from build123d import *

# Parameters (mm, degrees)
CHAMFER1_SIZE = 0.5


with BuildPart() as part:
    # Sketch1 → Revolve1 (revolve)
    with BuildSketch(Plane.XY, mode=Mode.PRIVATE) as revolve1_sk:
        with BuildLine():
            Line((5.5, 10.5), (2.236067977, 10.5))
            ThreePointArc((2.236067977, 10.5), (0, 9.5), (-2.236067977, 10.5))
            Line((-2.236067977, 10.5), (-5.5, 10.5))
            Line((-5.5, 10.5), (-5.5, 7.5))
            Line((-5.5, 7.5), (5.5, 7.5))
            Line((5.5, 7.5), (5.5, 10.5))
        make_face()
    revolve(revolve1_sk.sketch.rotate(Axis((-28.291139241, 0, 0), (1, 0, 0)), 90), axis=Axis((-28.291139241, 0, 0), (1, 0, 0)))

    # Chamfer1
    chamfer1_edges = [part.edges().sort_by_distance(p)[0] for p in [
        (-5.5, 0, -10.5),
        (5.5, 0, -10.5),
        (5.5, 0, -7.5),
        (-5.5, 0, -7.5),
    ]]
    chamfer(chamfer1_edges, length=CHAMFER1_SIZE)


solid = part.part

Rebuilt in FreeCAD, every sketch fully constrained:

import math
import FreeCAD as App
import Part
import Sketcher
from FreeCAD import Vector


def edges_at(feature, points):
    """Names of the edges that pass closest to the given points."""
    edges = feature.Shape.Edges
    near = lambda p: min(range(len(edges)), key=lambda i: edges[i].distToShape(Part.Vertex(*p))[0])
    return sorted({f"Edge{near(p) + 1}" for p in points})

doc = App.newDocument("Part")
body = doc.addObject("PartDesign::Body", "Body")

# Sketch on XY plane
sketch1 = body.newObject("Sketcher::SketchObject", "Sketch")
sketch1.AttachmentSupport = (doc.getObject("XY_Plane"), [""])
sketch1.MapMode = "FlatFace"
sketch1.addGeometry([
    Part.LineSegment(Vector(5.5, 10.5, 0), Vector(2.2, 10.5, 0)),  # 0
    Part.ArcOfCircle(Part.Circle(Vector(0, 12.5, 0), Vector(0, 0, 1), 3), math.radians(-138), math.radians(-42)),  # 1
    Part.LineSegment(Vector(-2.2, 10.5, 0), Vector(-5.5, 10.5, 0)),  # 2
    Part.LineSegment(Vector(-5.5, 10.5, 0), Vector(-5.5, 7.5, 0)),  # 3
    Part.LineSegment(Vector(-5.5, 7.5, 0), Vector(5.5, 7.5, 0)),  # 4
    Part.LineSegment(Vector(5.5, 7.5, 0), Vector(5.5, 10.5, 0)),  # 5
], False)
sketch1.addConstraint([
    Sketcher.Constraint("Coincident", 0, 2, 1, 2),
    Sketcher.Constraint("Coincident", 1, 1, 2, 1),
    Sketcher.Constraint("Coincident", 2, 2, 3, 1),
    Sketcher.Constraint("Coincident", 3, 2, 4, 1),
    Sketcher.Constraint("Coincident", 4, 2, 5, 1),
    Sketcher.Constraint("Coincident", 5, 2, 0, 1),
    Sketcher.Constraint("Horizontal", 0),
    Sketcher.Constraint("Horizontal", 2),
    Sketcher.Constraint("Vertical", 3),
    Sketcher.Constraint("Horizontal", 4),
    Sketcher.Constraint("Vertical", 5),
    Sketcher.Constraint("Symmetric", 0, 2, 1, 1, -2),
    Sketcher.Constraint("Equal", 0, 2),
    Sketcher.Constraint("Radius", 1, 3.0),
    Sketcher.Constraint("DistanceX", 4, 1, 4, 2, 11.0),
    Sketcher.Constraint("DistanceY", 3, 2, 3, 1, 3.0),
    Sketcher.Constraint("DistanceY", 0, 2, 1, 3, 2.0),
    Sketcher.Constraint("DistanceY", -1, 1, 1, 3, 12.5),
])
revolution = body.newObject("PartDesign::Revolution", "Revolution")
revolution.Profile = sketch1
revolution.ReferenceAxis = (sketch1, ["H_Axis"])
revolution.Angle = 360
doc.recompute()

chamfer = body.newObject("PartDesign::Chamfer", "Chamfer")
chamfer.Base = (revolution, edges_at(revolution, [
    (-5.5, 0, -10.5),
    (5.5, 0, -10.5),
    (5.5, 0, -7.5),
    (-5.5, 0, -7.5),
]))
chamfer.Size = 0.5

doc.recompute()
